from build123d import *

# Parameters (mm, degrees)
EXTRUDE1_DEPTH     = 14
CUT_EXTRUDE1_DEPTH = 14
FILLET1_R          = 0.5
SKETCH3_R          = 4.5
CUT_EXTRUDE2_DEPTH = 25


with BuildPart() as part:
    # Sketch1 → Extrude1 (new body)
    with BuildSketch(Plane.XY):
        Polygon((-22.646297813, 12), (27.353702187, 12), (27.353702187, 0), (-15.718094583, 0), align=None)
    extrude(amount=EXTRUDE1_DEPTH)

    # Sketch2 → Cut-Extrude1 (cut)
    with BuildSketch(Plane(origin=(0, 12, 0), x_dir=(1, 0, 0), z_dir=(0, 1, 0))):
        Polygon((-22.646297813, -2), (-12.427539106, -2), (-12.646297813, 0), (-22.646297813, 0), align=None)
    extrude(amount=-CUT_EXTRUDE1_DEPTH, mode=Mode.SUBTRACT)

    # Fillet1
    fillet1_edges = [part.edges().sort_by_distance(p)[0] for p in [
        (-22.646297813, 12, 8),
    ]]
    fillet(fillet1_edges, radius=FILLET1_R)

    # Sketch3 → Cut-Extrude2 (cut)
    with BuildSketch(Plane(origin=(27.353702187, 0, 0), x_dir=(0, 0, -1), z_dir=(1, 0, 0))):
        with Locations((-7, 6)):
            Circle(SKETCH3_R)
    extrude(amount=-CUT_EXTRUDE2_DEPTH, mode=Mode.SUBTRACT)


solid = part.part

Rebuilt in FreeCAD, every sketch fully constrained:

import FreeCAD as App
import Part
import Sketcher
from FreeCAD import Vector
Q = App.Units.Quantity


def edges_at(feature, points):
    """Names of the edges that pass closest to the given points."""
    edges = feature.Shape.Edges
    near = lambda p: min(range(len(edges)), key=lambda i: edges[i].distToShape(Part.Vertex(*p))[0])
    return sorted({f"Edge{near(p) + 1}" for p in points})


def add_polygon(sketch, points):
    """Adds a closed chain of lines whose ends are joined by coincident constraints."""
    first, n = sketch.GeometryCount, len(points)
    for a, b in zip(points, points[1:] + points[:1]):
        sketch.addGeometry(Part.LineSegment(App.Vector(*a, 0), App.Vector(*b, 0)), False)
    for i in range(n):
        sketch.addConstraint(Sketcher.Constraint("Coincident", first + i, 2, first + (i + 1) % n, 1))

doc = App.newDocument("Part")
params = doc.addObject("Spreadsheet::Sheet", "Params")
for row, (alias, value) in enumerate([
    ("sketch1_width", "50 mm"),
    ("sketch1_height", "12 mm"),
    ("pad1_length", "14 mm"),
    ("sketch2_width", "10 mm"),
    ("sketch2_height", "2 mm"),
    ("pocket1_length", "14 mm"),
    ("fillet_radius", "0.5 mm"),
    ("sketch3_diameter", "9 mm"),
    ("pocket2_length", "25 mm"),
], start=1):
    params.set(f"A{row}", alias)
    params.set(f"B{row}", "=" + value)
    params.setAlias(f"B{row}", alias)

body = doc.addObject("PartDesign::Body", "Body")

sketch1 = body.newObject("Sketcher::SketchObject", "Sketch")
sketch1.AttachmentSupport = (doc.getObject("XY_Plane"), [""])
sketch1.MapMode = "FlatFace"
add_polygon(sketch1, [(27, 12), (-23, 12), (-16, 0), (27, 0)])
sketch1.addConstraint(Sketcher.Constraint("Horizontal", 0))
sketch1.addConstraint(Sketcher.Constraint("Horizontal", 2))
sketch1.addConstraint(Sketcher.Constraint("Vertical", 3))
sketch1.addConstraint(Sketcher.Constraint("PointOnObject", 1, 2, -1))
sketch1.addConstraint(Sketcher.Constraint("DistanceX", 0, 2, 0, 1, 50.0))
sketch1.addConstraint(Sketcher.Constraint("DistanceY", 3, 1, 3, 2, 12.0))
sketch1.addConstraint(Sketcher.Constraint("Angle", 1, Q("-60 deg")))
sketch1.addConstraint(Sketcher.Constraint("DistanceX", 0, 2, -1, 1, 22.646298))
sketch1.setExpression("Constraints[8]", "Params.sketch1_width")
sketch1.setExpression("Constraints[9]", "Params.sketch1_height")
pad1 = body.newObject("PartDesign::Pad", "Pad")
pad1.Profile = sketch1
pad1.setExpression("Length", "Params.pad1_length")

sketch2 = body.newObject("Sketcher::SketchObject", "Sketch001")
sketch2.AttachmentSupport = (doc.getObject("XZ_Plane"), [""])
sketch2.MapMode = "FlatFace"
sketch2.AttachmentOffset = App.Placement(Vector(0, 0, -12), App.Rotation())
add_polygon(sketch2, [(-22.6, 2), (-12.4, 2), (-12.6, 0), (-22.6, 0)])
sketch2.addConstraint(Sketcher.Constraint("Horizontal", 0))
sketch2.addConstraint(Sketcher.Constraint("Horizontal", 2))
sketch2.addConstraint(Sketcher.Constraint("Vertical", 3))
sketch2.addConstraint(Sketcher.Constraint("PointOnObject", 1, 2, -1))
sketch2.addConstraint(Sketcher.Constraint("DistanceX", 2, 2, 2, 1, 10.0))
sketch2.addConstraint(Sketcher.Constraint("DistanceY", 3, 1, 3, 2, 2.0))
sketch2.addConstraint(Sketcher.Constraint("DistanceX", 0, 1, 0, 2, 10.218759))
sketch2.addConstraint(Sketcher.Constraint("DistanceX", 0, 2, -1, 1, 12.427539))
sketch2.setExpression("Constraints[8]", "Params.sketch2_width")
sketch2.setExpression("Constraints[9]", "Params.sketch2_height")
pocket1 = body.newObject("PartDesign::Pocket", "Pocket")
pocket1.Profile = sketch2
pocket1.setExpression("Length", "Params.pocket1_length")
pocket1.Reversed = True
doc.recompute()

fillet = body.newObject("PartDesign::Fillet", "Fillet")
fillet.Base = (pocket1, edges_at(pocket1, [(-22.646, 12, 8)]))
fillet.setExpression("Radius", "Params.fillet_radius")

sketch3 = body.newObject("Sketcher::SketchObject", "Sketch002")
sketch3.AttachmentSupport = (doc.getObject("YZ_Plane"), [""])
sketch3.MapMode = "FlatFace"
sketch3.AttachmentOffset = App.Placement(Vector(0, 0, 27.353702), App.Rotation())
sketch3.addGeometry(Part.Circle(Vector(6, 7, 0), Vector(0, 0, 1), 4.5), False)
sketch3.addConstraint(Sketcher.Constraint("Diameter", 0, 9.0))
sketch3.addConstraint(Sketcher.Constraint("DistanceX", -1, 1, 0, 3, 6.0))
sketch3.addConstraint(Sketcher.Constraint("DistanceY", -1, 1, 0, 3, 7.0))
sketch3.setExpression("Constraints[0]", "Params.sketch3_diameter")
pocket2 = body.newObject("PartDesign::Pocket", "Pocket001")
pocket2.Profile = sketch3
pocket2.setExpression("Length", "Params.pocket2_length")

doc.recompute()
